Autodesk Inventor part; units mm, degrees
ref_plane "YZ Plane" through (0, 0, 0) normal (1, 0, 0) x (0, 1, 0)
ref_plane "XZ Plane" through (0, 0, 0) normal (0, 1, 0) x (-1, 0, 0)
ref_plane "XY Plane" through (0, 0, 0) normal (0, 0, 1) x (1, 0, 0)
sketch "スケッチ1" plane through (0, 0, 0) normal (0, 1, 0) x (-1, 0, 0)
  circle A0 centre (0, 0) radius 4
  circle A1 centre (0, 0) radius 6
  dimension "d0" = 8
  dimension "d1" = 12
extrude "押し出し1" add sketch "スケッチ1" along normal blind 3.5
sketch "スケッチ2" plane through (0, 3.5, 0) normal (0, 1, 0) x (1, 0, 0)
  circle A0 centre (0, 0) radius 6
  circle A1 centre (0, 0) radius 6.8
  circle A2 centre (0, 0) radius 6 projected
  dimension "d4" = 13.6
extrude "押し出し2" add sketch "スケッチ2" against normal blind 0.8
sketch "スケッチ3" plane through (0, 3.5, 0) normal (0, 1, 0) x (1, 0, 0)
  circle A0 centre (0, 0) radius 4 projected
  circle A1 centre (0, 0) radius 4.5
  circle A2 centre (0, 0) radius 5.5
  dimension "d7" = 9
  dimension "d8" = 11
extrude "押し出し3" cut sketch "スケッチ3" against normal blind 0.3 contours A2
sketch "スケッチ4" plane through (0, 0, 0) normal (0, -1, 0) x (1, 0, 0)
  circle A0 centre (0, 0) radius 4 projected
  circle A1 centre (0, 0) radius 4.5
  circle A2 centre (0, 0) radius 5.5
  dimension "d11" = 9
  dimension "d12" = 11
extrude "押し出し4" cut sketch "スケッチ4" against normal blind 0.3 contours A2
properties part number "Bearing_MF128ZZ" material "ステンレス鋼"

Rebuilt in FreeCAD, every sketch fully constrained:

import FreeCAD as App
import Part
import Sketcher

V = App.Vector
Q = App.Units.Quantity

doc = App.newDocument("Part")
params = doc.addObject("Spreadsheet::Sheet", "Params")
for row, (alias, value) in enumerate([
    ("sketch1_diameter", "12 mm"),
    ("sketch1_diameter2", "8 mm"),
    ("pad1_length", "3.5 mm"),
    ("sketch2_diameter", "13.6 mm"),
    ("sketch2_diameter2", "12 mm"),
    ("pad2_length", "0.8 mm"),
    ("sketch3_diameter", "11 mm"),
    ("sketch3_diameter2", "9 mm"),
    ("pocket1_length", "0.3 mm"),
    ("sketch4_diameter", "11 mm"),
    ("sketch4_diameter2", "9 mm"),
    ("pocket2_length", "0.3 mm"),
], start=1):
    params.set(f"A{row}", alias)
    params.set(f"B{row}", "=" + value)
    params.setAlias(f"B{row}", alias)

body = doc.addObject("PartDesign::Body", "Body")

sketch1 = body.newObject("Sketcher::SketchObject", "Sketch")
sketch1.AttachmentSupport = (doc.getObject("XZ_Plane"), [""])
sketch1.MapMode = "FlatFace"
sketch1.addGeometry([
    Part.Circle(V(0, 0, 0), V(0, 0, 1), 6),
    Part.Circle(V(0, 0, 0), V(0, 0, 1), 4),
], False)
sketch1.addConstraint([
    Sketcher.Constraint("Coincident", 0, 3, -1, 1),
    Sketcher.Constraint("Coincident", 1, 3, -1, 1),
    Sketcher.Constraint("Diameter", 0, Q("12 mm")),
    Sketcher.Constraint("Diameter", 1, Q("8 mm")),
])
sketch1.setExpression("Constraints[2]", "Params.sketch1_diameter")
sketch1.setExpression("Constraints[3]", "Params.sketch1_diameter2")
pad1 = body.newObject("PartDesign::Pad", "Pad")
pad1.Profile = sketch1
pad1.setExpression("Length", "Params.pad1_length")
pad1.Reversed = True

sketch2 = body.newObject("Sketcher::SketchObject", "Sketch001")
sketch2.AttachmentSupport = (doc.getObject("XZ_Plane"), [""])
sketch2.MapMode = "FlatFace"
sketch2.AttachmentOffset = App.Placement(V(0, 0, -3.5), App.Rotation())
sketch2.addGeometry([
    Part.Circle(V(0, 0, 0), V(0, 0, 1), 7),
    Part.Circle(V(0, 0, 0), V(0, 0, 1), 6),
], False)
sketch2.addConstraint([
    Sketcher.Constraint("Coincident", 0, 3, -1, 1),
    Sketcher.Constraint("Coincident", 1, 3, -1, 1),
    Sketcher.Constraint("Diameter", 0, Q("13.6 mm")),
    Sketcher.Constraint("Diameter", 1, Q("12 mm")),
])
sketch2.setExpression("Constraints[2]", "Params.sketch2_diameter")
sketch2.setExpression("Constraints[3]", "Params.sketch2_diameter2")
pad2 = body.newObject("PartDesign::Pad", "Pad001")
pad2.Profile = sketch2
pad2.setExpression("Length", "Params.pad2_length")

sketch3 = body.newObject("Sketcher::SketchObject", "Sketch002")
sketch3.AttachmentSupport = (doc.getObject("XZ_Plane"), [""])
sketch3.MapMode = "FlatFace"
sketch3.AttachmentOffset = App.Placement(V(0, 0, -3.5), App.Rotation())
sketch3.addGeometry([
    Part.Circle(V(0, 0, 0), V(0, 0, 1), 5.5),
    Part.Circle(V(0, 0, 0), V(0, 0, 1), 4.5),
], False)
sketch3.addConstraint([
    Sketcher.Constraint("Coincident", 0, 3, -1, 1),
    Sketcher.Constraint("Coincident", 1, 3, -1, 1),
    Sketcher.Constraint("Diameter", 0, Q("11 mm")),
    Sketcher.Constraint("Diameter", 1, Q("9 mm")),
])
sketch3.setExpression("Constraints[2]", "Params.sketch3_diameter")
sketch3.setExpression("Constraints[3]", "Params.sketch3_diameter2")
pocket1 = body.newObject("PartDesign::Pocket", "Pocket")
pocket1.Profile = sketch3
pocket1.setExpression("Length", "Params.pocket1_length")
pocket1.Reversed = True

sketch4 = body.newObject("Sketcher::SketchObject", "Sketch003")
sketch4.AttachmentSupport = (doc.getObject("XZ_Plane"), [""])
sketch4.MapMode = "FlatFace"
sketch4.addGeometry([
    Part.Circle(V(0, 0, 0), V(0, 0, 1), 5.5),
    Part.Circle(V(0, 0, 0), V(0, 0, 1), 4.5),
], False)
sketch4.addConstraint([
    Sketcher.Constraint("Coincident", 0, 3, -1, 1),
    Sketcher.Constraint("Coincident", 1, 3, -1, 1),
    Sketcher.Constraint("Diameter", 0, Q("11 mm")),
    Sketcher.Constraint("Diameter", 1, Q("9 mm")),
])
sketch4.setExpression("Constraints[2]", "Params.sketch4_diameter")
sketch4.setExpression("Constraints[3]", "Params.sketch4_diameter2")
pocket2 = body.newObject("PartDesign::Pocket", "Pocket001")
pocket2.Profile = sketch4
pocket2.setExpression("Length", "Params.pocket2_length")

doc.recompute()
